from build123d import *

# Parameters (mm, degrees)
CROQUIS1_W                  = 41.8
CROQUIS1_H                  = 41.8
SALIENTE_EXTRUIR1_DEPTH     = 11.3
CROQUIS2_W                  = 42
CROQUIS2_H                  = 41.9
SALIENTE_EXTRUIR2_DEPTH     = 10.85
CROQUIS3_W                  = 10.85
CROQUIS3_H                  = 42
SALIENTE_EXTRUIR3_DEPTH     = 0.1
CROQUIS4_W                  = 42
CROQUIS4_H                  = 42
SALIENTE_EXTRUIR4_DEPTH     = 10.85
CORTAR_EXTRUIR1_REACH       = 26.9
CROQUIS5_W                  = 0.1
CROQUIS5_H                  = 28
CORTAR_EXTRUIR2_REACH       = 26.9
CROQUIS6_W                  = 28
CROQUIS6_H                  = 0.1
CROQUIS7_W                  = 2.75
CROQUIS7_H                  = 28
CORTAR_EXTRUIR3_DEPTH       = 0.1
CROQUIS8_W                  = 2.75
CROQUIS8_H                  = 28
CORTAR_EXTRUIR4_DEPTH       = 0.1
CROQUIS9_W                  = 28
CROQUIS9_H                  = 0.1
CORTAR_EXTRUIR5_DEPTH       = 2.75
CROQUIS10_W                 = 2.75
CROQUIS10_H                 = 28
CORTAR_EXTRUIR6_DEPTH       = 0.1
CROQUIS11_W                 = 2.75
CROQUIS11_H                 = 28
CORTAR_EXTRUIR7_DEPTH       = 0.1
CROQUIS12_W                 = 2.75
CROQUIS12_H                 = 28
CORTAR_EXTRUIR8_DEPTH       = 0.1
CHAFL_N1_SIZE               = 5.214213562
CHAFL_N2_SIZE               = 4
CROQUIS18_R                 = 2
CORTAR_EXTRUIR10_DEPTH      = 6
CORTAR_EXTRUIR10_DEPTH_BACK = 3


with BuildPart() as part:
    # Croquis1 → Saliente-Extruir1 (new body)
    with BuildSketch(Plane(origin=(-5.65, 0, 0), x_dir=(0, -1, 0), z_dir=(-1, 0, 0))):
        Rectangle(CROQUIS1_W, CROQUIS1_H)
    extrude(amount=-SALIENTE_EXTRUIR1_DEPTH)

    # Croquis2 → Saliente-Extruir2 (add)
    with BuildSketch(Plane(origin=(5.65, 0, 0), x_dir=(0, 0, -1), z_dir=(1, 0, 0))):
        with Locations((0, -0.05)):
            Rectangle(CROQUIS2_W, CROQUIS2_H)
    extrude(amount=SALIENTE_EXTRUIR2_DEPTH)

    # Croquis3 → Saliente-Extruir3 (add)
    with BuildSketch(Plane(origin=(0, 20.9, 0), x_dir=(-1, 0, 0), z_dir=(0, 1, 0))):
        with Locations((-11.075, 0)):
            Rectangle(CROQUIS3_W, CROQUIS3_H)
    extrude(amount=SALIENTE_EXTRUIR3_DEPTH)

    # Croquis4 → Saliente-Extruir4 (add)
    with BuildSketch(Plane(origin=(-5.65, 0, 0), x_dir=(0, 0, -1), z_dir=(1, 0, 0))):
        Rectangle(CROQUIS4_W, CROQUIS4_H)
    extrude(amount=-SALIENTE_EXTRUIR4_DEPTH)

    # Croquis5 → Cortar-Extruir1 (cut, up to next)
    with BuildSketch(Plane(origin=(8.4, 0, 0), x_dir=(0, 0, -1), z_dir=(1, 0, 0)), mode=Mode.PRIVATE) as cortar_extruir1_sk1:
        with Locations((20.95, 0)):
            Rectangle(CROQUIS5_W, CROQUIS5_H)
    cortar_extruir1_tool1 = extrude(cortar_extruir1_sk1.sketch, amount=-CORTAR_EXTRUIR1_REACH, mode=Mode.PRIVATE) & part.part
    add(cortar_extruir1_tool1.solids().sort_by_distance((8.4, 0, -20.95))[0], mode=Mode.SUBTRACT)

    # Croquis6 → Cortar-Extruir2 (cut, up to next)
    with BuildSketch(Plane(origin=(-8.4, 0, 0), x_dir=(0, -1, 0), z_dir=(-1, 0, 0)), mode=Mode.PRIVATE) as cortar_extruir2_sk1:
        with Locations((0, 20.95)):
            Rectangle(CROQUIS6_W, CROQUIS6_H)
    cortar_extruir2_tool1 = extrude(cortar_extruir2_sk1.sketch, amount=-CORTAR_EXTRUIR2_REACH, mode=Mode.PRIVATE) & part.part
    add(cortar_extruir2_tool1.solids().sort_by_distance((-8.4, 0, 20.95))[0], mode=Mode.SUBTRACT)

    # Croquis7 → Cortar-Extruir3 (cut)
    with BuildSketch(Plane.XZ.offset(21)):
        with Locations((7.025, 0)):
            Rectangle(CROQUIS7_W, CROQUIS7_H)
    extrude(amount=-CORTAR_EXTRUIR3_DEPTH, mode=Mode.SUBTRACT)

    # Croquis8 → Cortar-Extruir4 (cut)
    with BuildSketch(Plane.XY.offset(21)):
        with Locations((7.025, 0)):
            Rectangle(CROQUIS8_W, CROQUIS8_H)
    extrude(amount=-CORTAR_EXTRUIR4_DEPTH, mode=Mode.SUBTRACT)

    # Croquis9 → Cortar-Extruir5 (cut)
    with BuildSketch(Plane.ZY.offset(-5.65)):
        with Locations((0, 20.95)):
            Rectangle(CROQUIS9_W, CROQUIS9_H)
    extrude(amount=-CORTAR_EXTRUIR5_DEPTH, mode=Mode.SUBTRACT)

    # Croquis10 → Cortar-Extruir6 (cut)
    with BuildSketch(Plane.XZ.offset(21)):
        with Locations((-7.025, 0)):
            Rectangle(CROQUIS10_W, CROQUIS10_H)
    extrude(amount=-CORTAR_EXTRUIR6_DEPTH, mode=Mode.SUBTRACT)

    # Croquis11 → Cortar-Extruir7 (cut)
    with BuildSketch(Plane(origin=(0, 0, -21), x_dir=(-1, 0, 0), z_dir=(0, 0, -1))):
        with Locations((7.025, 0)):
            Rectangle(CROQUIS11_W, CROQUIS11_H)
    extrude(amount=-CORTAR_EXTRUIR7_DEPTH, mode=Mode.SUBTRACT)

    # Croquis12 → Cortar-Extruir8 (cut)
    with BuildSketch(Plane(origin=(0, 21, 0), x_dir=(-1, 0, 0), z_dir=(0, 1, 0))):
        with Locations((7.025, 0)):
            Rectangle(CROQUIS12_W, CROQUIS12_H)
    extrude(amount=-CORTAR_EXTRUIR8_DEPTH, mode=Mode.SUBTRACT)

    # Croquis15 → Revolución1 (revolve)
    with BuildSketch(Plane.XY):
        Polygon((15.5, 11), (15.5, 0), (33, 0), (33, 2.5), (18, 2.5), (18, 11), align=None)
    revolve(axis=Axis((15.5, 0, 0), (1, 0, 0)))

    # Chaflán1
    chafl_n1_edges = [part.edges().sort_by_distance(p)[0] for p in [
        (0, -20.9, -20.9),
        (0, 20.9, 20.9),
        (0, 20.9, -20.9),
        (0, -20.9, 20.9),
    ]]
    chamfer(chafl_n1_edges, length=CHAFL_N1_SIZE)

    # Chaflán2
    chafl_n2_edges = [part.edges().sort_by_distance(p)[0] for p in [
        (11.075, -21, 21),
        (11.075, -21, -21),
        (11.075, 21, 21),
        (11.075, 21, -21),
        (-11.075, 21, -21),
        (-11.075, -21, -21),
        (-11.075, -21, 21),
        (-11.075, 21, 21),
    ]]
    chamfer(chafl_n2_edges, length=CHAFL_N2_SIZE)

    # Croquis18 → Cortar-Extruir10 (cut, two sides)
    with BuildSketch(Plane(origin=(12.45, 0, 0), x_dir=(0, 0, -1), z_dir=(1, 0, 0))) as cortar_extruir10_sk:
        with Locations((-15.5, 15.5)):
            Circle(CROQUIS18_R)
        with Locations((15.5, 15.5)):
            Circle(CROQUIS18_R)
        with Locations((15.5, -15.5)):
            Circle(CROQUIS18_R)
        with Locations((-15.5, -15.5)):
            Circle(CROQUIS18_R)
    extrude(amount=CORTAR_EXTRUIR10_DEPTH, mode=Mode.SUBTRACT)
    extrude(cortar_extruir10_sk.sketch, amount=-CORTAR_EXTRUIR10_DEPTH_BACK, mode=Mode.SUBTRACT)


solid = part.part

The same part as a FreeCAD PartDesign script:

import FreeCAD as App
import Part
import Sketcher
from FreeCAD import Vector
Q = App.Units.Quantity


def edges_at(feature, points):
    """Names of the edges that pass closest to the given points."""
    edges = feature.Shape.Edges
    near = lambda p: min(range(len(edges)), key=lambda i: edges[i].distToShape(Part.Vertex(*p))[0])
    return sorted({f"Edge{near(p) + 1}" for p in points})

doc = App.newDocument("Part")
params = doc.addObject("Spreadsheet::Sheet", "Params")
for row, (alias, value) in enumerate([
    ("sketch1_width", "41.8 mm"),
    ("pad1_length", "11.3 mm"),
    ("sketch2_height", "42 mm"),
    ("sketch2_width", "41.9 mm"),
    ("pad2_length", "10.85 mm"),
    ("sketch3_height", "42 mm"),
    ("sketch3_width", "10.85 mm"),
    ("pad3_length", "0.1 mm"),
    ("sketch4_width", "42 mm"),
    ("pad4_length", "10.85 mm"),
    ("sketch5_width", "28 mm"),
    ("sketch5_height", "0.1 mm"),
    ("sketch6_width", "28 mm"),
    ("sketch6_height", "0.1 mm"),
    ("sketch7_height", "28 mm"),
    ("sketch7_width", "2.75 mm"),
    ("pocket3_length", "0.1 mm"),
    ("sketch8_height", "28 mm"),
    ("sketch8_width", "2.75 mm"),
    ("pocket4_length", "0.1 mm"),
    ("sketch9_height", "28 mm"),
    ("sketch9_width", "0.1 mm"),
    ("pocket5_length", "2.75 mm"),
    ("sketch10_height", "28 mm"),
    ("sketch10_width", "2.75 mm"),
    ("pocket6_length", "0.1 mm"),
    ("sketch11_height", "28 mm"),
    ("sketch11_width", "2.75 mm"),
    ("pocket7_length", "0.1 mm"),
    ("sketch12_height", "28 mm"),
    ("sketch12_width", "2.75 mm"),
    ("pocket8_length", "0.1 mm"),
    ("sketch13_width", "15 mm"),
    ("sketch13_height", "11 mm"),
    ("sketch13_width2", "17.5 mm"),
    ("revolution_angle", "360 deg"),
    ("chamfer_size", "5.214214 mm"),
    ("chamfer2_size", "4 mm"),
    ("sketch14_diameter", "4 mm"),
    ("pocket9_length", "6 mm"),
    ("pocket9_length2", "3 mm"),
], start=1):
    params.set(f"A{row}", alias)
    params.set(f"B{row}", "=" + value)
    params.setAlias(f"B{row}", alias)

body = doc.addObject("PartDesign::Body", "Body")

# Sketch on YZ plane
sketch1 = doc.addObject("Sketcher::SketchObject", "Sketch")
body.addObject(sketch1)
sketch1.AttachmentSupport = (doc.YZ_Plane, [""])
sketch1.MapMode = "FlatFace"
sketch1.AttachmentOffset = App.Placement(Vector(0, 0, -5.65), App.Rotation())
sketch1.addGeometry([
    Part.LineSegment(Vector(21, 21, 0), Vector(21, -21, 0)),
    Part.LineSegment(Vector(21, -21, 0), Vector(-21, -21, 0)),
    Part.LineSegment(Vector(-21, -21, 0), Vector(-21, 21, 0)),
    Part.LineSegment(Vector(-21, 21, 0), Vector(21, 21, 0)),
], False)
sketch1.addConstraint([
    Sketcher.Constraint("Coincident", 0, 2, 1, 1),
    Sketcher.Constraint("Coincident", 1, 2, 2, 1),
    Sketcher.Constraint("Coincident", 2, 2, 3, 1),
    Sketcher.Constraint("Coincident", 3, 2, 0, 1),
    Sketcher.Constraint("Vertical", 0),
    Sketcher.Constraint("Horizontal", 1),
    Sketcher.Constraint("Vertical", 2),
    Sketcher.Constraint("Horizontal", 3),
    Sketcher.Constraint("Symmetric", 0, 2, 2, 2, -1, 1),
    Sketcher.Constraint("Equal", 3, 0),
    Sketcher.Constraint("DistanceX", 1, 2, 1, 1, Q("41.8 mm")),
])
sketch1.setExpression("Constraints[10]", "Params.sketch1_width")
pad1 = doc.addObject("PartDesign::Pad", "Pad")
body.addObject(pad1)
pad1.Profile = sketch1
pad1.setExpression("Length", "Params.pad1_length")

# Sketch on YZ plane
sketch2 = doc.addObject("Sketcher::SketchObject", "Sketch001")
body.addObject(sketch2)
sketch2.AttachmentSupport = (doc.YZ_Plane, [""])
sketch2.MapMode = "FlatFace"
sketch2.AttachmentOffset = App.Placement(Vector(0, 0, 5.65), App.Rotation())
sketch2.addGeometry([
    Part.LineSegment(Vector(21, 21, 0), Vector(-21, 21, 0)),
    Part.LineSegment(Vector(-21, 21, 0), Vector(-21, -21, 0)),
    Part.LineSegment(Vector(-21, -21, 0), Vector(21, -21, 0)),
    Part.LineSegment(Vector(21, -21, 0), Vector(21, 21, 0)),
], False)
sketch2.addConstraint([
    Sketcher.Constraint("Coincident", 0, 2, 1, 1),
    Sketcher.Constraint("Coincident", 1, 2, 2, 1),
    Sketcher.Constraint("Coincident", 2, 2, 3, 1),
    Sketcher.Constraint("Coincident", 3, 2, 0, 1),
    Sketcher.Constraint("Horizontal", 0),
    Sketcher.Constraint("Vertical", 1),
    Sketcher.Constraint("Horizontal", 2),
    Sketcher.Constraint("Vertical", 3),
    Sketcher.Constraint("DistanceY", 1, 2, 1, 1, Q("42 mm")),
    Sketcher.Constraint("DistanceX", 0, 2, 0, 1, Q("41.9 mm")),
    Sketcher.Constraint("DistanceX", 0, 2, -1, 1, Q("21 mm")),
    Sketcher.Constraint("DistanceY", -1, 1, 0, 2, Q("21 mm")),
])
sketch2.setExpression("Constraints[8]", "Params.sketch2_height")
sketch2.setExpression("Constraints[9]", "Params.sketch2_width")
pad2 = doc.addObject("PartDesign::Pad", "Pad001")
body.addObject(pad2)
pad2.Profile = sketch2
pad2.setExpression("Length", "Params.pad2_length")

# Sketch on XZ plane
sketch3 = doc.addObject("Sketcher::SketchObject", "Sketch002")
body.addObject(sketch3)
sketch3.AttachmentSupport = (doc.XZ_Plane, [""])
sketch3.MapMode = "FlatFace"
sketch3.AttachmentOffset = App.Placement(Vector(0, 0, -20.9), App.Rotation())
sketch3.addGeometry([
    Part.LineSegment(Vector(16, 21, 0), Vector(16, -21, 0)),
    Part.LineSegment(Vector(16, -21, 0), Vector(6, -21, 0)),
    Part.LineSegment(Vector(6, -21, 0), Vector(6, 21, 0)),
    Part.LineSegment(Vector(6, 21, 0), Vector(16, 21, 0)),
], False)
sketch3.addConstraint([
    Sketcher.Constraint("Coincident", 0, 2, 1, 1),
    Sketcher.Constraint("Coincident", 1, 2, 2, 1),
    Sketcher.Constraint("Coincident", 2, 2, 3, 1),
    Sketcher.Constraint("Coincident", 3, 2, 0, 1),
    Sketcher.Constraint("Vertical", 0),
    Sketcher.Constraint("Horizontal", 1),
    Sketcher.Constraint("Vertical", 2),
    Sketcher.Constraint("Horizontal", 3),
    Sketcher.Constraint("DistanceY", 0, 2, 0, 1, Q("42 mm")),
    Sketcher.Constraint("DistanceY", 0, 2, -1, 1, Q("21 mm")),
    Sketcher.Constraint("DistanceX", 1, 2, 1, 1, Q("10.85 mm")),
    Sketcher.Constraint("DistanceX", -1, 1, 0, 2, Q("16.5 mm")),
])
sketch3.setExpression("Constraints[8]", "Params.sketch3_height")
sketch3.setExpression("Constraints[10]", "Params.sketch3_width")
pad3 = doc.addObject("PartDesign::Pad", "Pad002")
body.addObject(pad3)
pad3.Profile = sketch3
pad3.setExpression("Length", "Params.pad3_length")
pad3.Reversed = True

# Sketch on YZ plane
sketch4 = doc.addObject("Sketcher::SketchObject", "Sketch003")
body.addObject(sketch4)
sketch4.AttachmentSupport = (doc.YZ_Plane, [""])
sketch4.MapMode = "FlatFace"
sketch4.AttachmentOffset = App.Placement(Vector(0, 0, -5.65), App.Rotation())
sketch4.addGeometry([
    Part.LineSegment(Vector(21, 21, 0), Vector(-21, 21, 0)),
    Part.LineSegment(Vector(-21, 21, 0), Vector(-21, -21, 0)),
    Part.LineSegment(Vector(-21, -21, 0), Vector(21, -21, 0)),
    Part.LineSegment(Vector(21, -21, 0), Vector(21, 21, 0)),
], False)
sketch4.addConstraint([
    Sketcher.Constraint("Coincident", 0, 2, 1, 1),
    Sketcher.Constraint("Coincident", 1, 2, 2, 1),
    Sketcher.Constraint("Coincident", 2, 2, 3, 1),
    Sketcher.Constraint("Coincident", 3, 2, 0, 1),
    Sketcher.Constraint("Horizontal", 0),
    Sketcher.Constraint("Vertical", 1),
    Sketcher.Constraint("Horizontal", 2),
    Sketcher.Constraint("Vertical", 3),
    Sketcher.Constraint("Symmetric", 0, 2, 2, 2, -1, 1),
    Sketcher.Constraint("Equal", 2, 1),
    Sketcher.Constraint("DistanceX", 0, 2, 0, 1, Q("42 mm")),
])
sketch4.setExpression("Constraints[10]", "Params.sketch4_width")
pad4 = doc.addObject("PartDesign::Pad", "Pad003")
body.addObject(pad4)
pad4.Profile = sketch4
pad4.setExpression("Length", "Params.pad4_length")
pad4.Reversed = True

# Sketch on YZ plane
sketch5 = doc.addObject("Sketcher::SketchObject", "Sketch004")
body.addObject(sketch5)
sketch5.AttachmentSupport = (doc.YZ_Plane, [""])
sketch5.MapMode = "FlatFace"
sketch5.AttachmentOffset = App.Placement(Vector(0, 0, 8.4), App.Rotation())
sketch5.addGeometry([
    Part.LineSegment(Vector(14, -20.9, 0), Vector(-14, -20.9, 0)),
    Part.LineSegment(Vector(-14, -20.9, 0), Vector(-14, -21, 0)),
    Part.LineSegment(Vector(-14, -21, 0), Vector(14, -21, 0)),
    Part.LineSegment(Vector(14, -21, 0), Vector(14, -20.9, 0)),
], False)
sketch5.addConstraint([
    Sketcher.Constraint("Coincident", 0, 2, 1, 1),
    Sketcher.Constraint("Coincident", 1, 2, 2, 1),
    Sketcher.Constraint("Coincident", 2, 2, 3, 1),
    Sketcher.Constraint("Coincident", 3, 2, 0, 1),
    Sketcher.Constraint("Horizontal", 0),
    Sketcher.Constraint("Vertical", 1),
    Sketcher.Constraint("Horizontal", 2),
    Sketcher.Constraint("Vertical", 3),
    Sketcher.Constraint("DistanceX", 0, 2, 0, 1, Q("28 mm")),
    Sketcher.Constraint("DistanceY", 1, 2, 1, 1, Q("0.1 mm")),
    Sketcher.Constraint("DistanceX", 0, 2, -1, 1, Q("14 mm")),
    Sketcher.Constraint("DistanceY", 1, 2, -1, 1, Q("21 mm")),
])
sketch5.setExpression("Constraints[8]", "Params.sketch5_width")
sketch5.setExpression("Constraints[9]", "Params.sketch5_height")
pocket1 = doc.addObject("PartDesign::Pocket", "Pocket")
body.addObject(pocket1)
pocket1.Profile = sketch5
pocket1.Type = "UpToFirst"

# Sketch on YZ plane
sketch6 = doc.addObject("Sketcher::SketchObject", "Sketch005")
body.addObject(sketch6)
sketch6.AttachmentSupport = (doc.YZ_Plane, [""])
sketch6.MapMode = "FlatFace"
sketch6.AttachmentOffset = App.Placement(Vector(0, 0, -8.4), App.Rotation())
sketch6.addGeometry([
    Part.LineSegment(Vector(14, 21, 0), Vector(14, 20.9, 0)),
    Part.LineSegment(Vector(14, 20.9, 0), Vector(-14, 20.9, 0)),
    Part.LineSegment(Vector(-14, 20.9, 0), Vector(-14, 21, 0)),
    Part.LineSegment(Vector(-14, 21, 0), Vector(14, 21, 0)),
], False)
sketch6.addConstraint([
    Sketcher.Constraint("Coincident", 0, 2, 1, 1),
    Sketcher.Constraint("Coincident", 1, 2, 2, 1),
    Sketcher.Constraint("Coincident", 2, 2, 3, 1),
    Sketcher.Constraint("Coincident", 3, 2, 0, 1),
    Sketcher.Constraint("Vertical", 0),
    Sketcher.Constraint("Horizontal", 1),
    Sketcher.Constraint("Vertical", 2),
    Sketcher.Constraint("Horizontal", 3),
    Sketcher.Constraint("DistanceX", 1, 2, 1, 1, Q("28 mm")),
    Sketcher.Constraint("DistanceY", 0, 2, 0, 1, Q("0.1 mm")),
    Sketcher.Constraint("DistanceX", -1, 1, 0, 2, Q("14 mm")),
    Sketcher.Constraint("DistanceY", -1, 1, 2, 2, Q("21 mm")),
])
sketch6.setExpression("Constraints[8]", "Params.sketch6_width")
sketch6.setExpression("Constraints[9]", "Params.sketch6_height")
pocket2 = doc.addObject("PartDesign::Pocket", "Pocket001")
body.addObject(pocket2)
pocket2.Profile = sketch6
pocket2.Type = "UpToFirst"
pocket2.Reversed = True

# Sketch on XZ plane
sketch7 = doc.addObject("Sketcher::SketchObject", "Sketch006")
body.addObject(sketch7)
sketch7.AttachmentSupport = (doc.XZ_Plane, [""])
sketch7.MapMode = "FlatFace"
sketch7.AttachmentOffset = App.Placement(Vector(0, 0, 21), App.Rotation())
sketch7.addGeometry([
    Part.LineSegment(Vector(5.7, 14, 0), Vector(5.7, -14, 0)),
    Part.LineSegment(Vector(5.7, -14, 0), Vector(8.4, -14, 0)),
    Part.LineSegment(Vector(8.4, -14, 0), Vector(8.4, 14, 0)),
    Part.LineSegment(Vector(8.4, 14, 0), Vector(5.7, 14, 0)),
], False)
sketch7.addConstraint([
    Sketcher.Constraint("Coincident", 0, 2, 1, 1),
    Sketcher.Constraint("Coincident", 1, 2, 2, 1),
    Sketcher.Constraint("Coincident", 2, 2, 3, 1),
    Sketcher.Constraint("Coincident", 3, 2, 0, 1),
    Sketcher.Constraint("Vertical", 0),
    Sketcher.Constraint("Horizontal", 1),
    Sketcher.Constraint("Vertical", 2),
    Sketcher.Constraint("Horizontal", 3),
    Sketcher.Constraint("DistanceY", 0, 2, 0, 1, Q("28 mm")),
    Sketcher.Constraint("DistanceY", 0, 2, -1, 1, Q("14 mm")),
    Sketcher.Constraint("DistanceX", 1, 1, 1, 2, Q("2.75 mm")),
    Sketcher.Constraint("DistanceX", -1, 1, 1, 2, Q("8.4 mm")),
])
sketch7.setExpression("Constraints[8]", "Params.sketch7_height")
sketch7.setExpression("Constraints[10]", "Params.sketch7_width")
pocket3 = doc.addObject("PartDesign::Pocket", "Pocket002")
body.addObject(pocket3)
pocket3.Profile = sketch7
pocket3.setExpression("Length", "Params.pocket3_length")

# Sketch on XY plane
sketch8 = doc.addObject("Sketcher::SketchObject", "Sketch007")
body.addObject(sketch8)
sketch8.AttachmentSupport = (doc.XY_Plane, [""])
sketch8.MapMode = "FlatFace"
sketch8.AttachmentOffset = App.Placement(Vector(0, 0, 21), App.Rotation())
sketch8.addGeometry([
    Part.LineSegment(Vector(5.7, 14, 0), Vector(5.7, -14, 0)),
    Part.LineSegment(Vector(5.7, -14, 0), Vector(8.4, -14, 0)),
    Part.LineSegment(Vector(8.4, -14, 0), Vector(8.4, 14, 0)),
    Part.LineSegment(Vector(8.4, 14, 0), Vector(5.7, 14, 0)),
], False)
sketch8.addConstraint([
    Sketcher.Constraint("Coincident", 0, 2, 1, 1),
    Sketcher.Constraint("Coincident", 1, 2, 2, 1),
    Sketcher.Constraint("Coincident", 2, 2, 3, 1),
    Sketcher.Constraint("Coincident", 3, 2, 0, 1),
    Sketcher.Constraint("Vertical", 0),
    Sketcher.Constraint("Horizontal", 1),
    Sketcher.Constraint("Vertical", 2),
    Sketcher.Constraint("Horizontal", 3),
    Sketcher.Constraint("DistanceY", 0, 2, 0, 1, Q("28 mm")),
    Sketcher.Constraint("DistanceY", 0, 2, -1, 1, Q("14 mm")),
    Sketcher.Constraint("DistanceX", 1, 1, 1, 2, Q("2.75 mm")),
    Sketcher.Constraint("DistanceX", -1, 1, 1, 2, Q("8.4 mm")),
])
sketch8.setExpression("Constraints[8]", "Params.sketch8_height")
sketch8.setExpression("Constraints[10]", "Params.sketch8_width")
pocket4 = doc.addObject("PartDesign::Pocket", "Pocket003")
body.addObject(pocket4)
pocket4.Profile = sketch8
pocket4.setExpression("Length", "Params.pocket4_length")

# Sketch on YZ plane
sketch9 = doc.addObject("Sketcher::SketchObject", "Sketch008")
body.addObject(sketch9)
sketch9.AttachmentSupport = (doc.YZ_Plane, [""])
sketch9.MapMode = "FlatFace"
sketch9.AttachmentOffset = App.Placement(Vector(0, 0, 5.65), App.Rotation())
sketch9.addGeometry([
    Part.LineSegment(Vector(21, -14, 0), Vector(20.9, -14, 0)),
    Part.LineSegment(Vector(20.9, -14, 0), Vector(20.9, 14, 0)),
    Part.LineSegment(Vector(20.9, 14, 0), Vector(21, 14, 0)),
    Part.LineSegment(Vector(21, 14, 0), Vector(21, -14, 0)),
], False)
sketch9.addConstraint([
    Sketcher.Constraint("Coincident", 0, 2, 1, 1),
    Sketcher.Constraint("Coincident", 1, 2, 2, 1),
    Sketcher.Constraint("Coincident", 2, 2, 3, 1),
    Sketcher.Constraint("Coincident", 3, 2, 0, 1),
    Sketcher.Constraint("Horizontal", 0),
    Sketcher.Constraint("Vertical", 1),
    Sketcher.Constraint("Horizontal", 2),
    Sketcher.Constraint("Vertical", 3),
    Sketcher.Constraint("DistanceY", 1, 1, 1, 2, Q("28 mm")),
    Sketcher.Constraint("DistanceX", 0, 2, 0, 1, Q("0.1 mm")),
    Sketcher.Constraint("DistanceY", 0, 2, -1, 1, Q("14 mm")),
    Sketcher.Constraint("DistanceX", -1, 1, 2, 2, Q("21 mm")),
])
sketch9.setExpression("Constraints[8]", "Params.sketch9_height")
sketch9.setExpression("Constraints[9]", "Params.sketch9_width")
pocket5 = doc.addObject("PartDesign::Pocket", "Pocket004")
body.addObject(pocket5)
pocket5.Profile = sketch9
pocket5.setExpression("Length", "Params.pocket5_length")
pocket5.Reversed = True

# Sketch on XZ plane
sketch10 = doc.addObject("Sketcher::SketchObject", "Sketch009")
body.addObject(sketch10)
sketch10.AttachmentSupport = (doc.XZ_Plane, [""])
sketch10.MapMode = "FlatFace"
sketch10.AttachmentOffset = App.Placement(Vector(0, 0, 21), App.Rotation())
sketch10.addGeometry([
    Part.LineSegment(Vector(-8.4, 14, 0), Vector(-8.4, -14, 0)),
    Part.LineSegment(Vector(-8.4, -14, 0), Vector(-5.7, -14, 0)),
    Part.LineSegment(Vector(-5.7, -14, 0), Vector(-5.7, 14, 0)),
    Part.LineSegment(Vector(-5.7, 14, 0), Vector(-8.4, 14, 0)),
], False)
sketch10.addConstraint([
    Sketcher.Constraint("Coincident", 0, 2, 1, 1),
    Sketcher.Constraint("Coincident", 1, 2, 2, 1),
    Sketcher.Constraint("Coincident", 2, 2, 3, 1),
    Sketcher.Constraint("Coincident", 3, 2, 0, 1),
    Sketcher.Constraint("Vertical", 0),
    Sketcher.Constraint("Horizontal", 1),
    Sketcher.Constraint("Vertical", 2),
    Sketcher.Constraint("Horizontal", 3),
    Sketcher.Constraint("DistanceY", 0, 2, 0, 1, Q("28 mm")),
    Sketcher.Constraint("DistanceY", 0, 2, -1, 1, Q("14 mm")),
    Sketcher.Constraint("DistanceX", 1, 1, 1, 2, Q("2.75 mm")),
    Sketcher.Constraint("DistanceX", 0, 2, -1, 1, Q("8.4 mm")),
])
sketch10.setExpression("Constraints[8]", "Params.sketch10_height")
sketch10.setExpression("Constraints[10]", "Params.sketch10_width")
pocket6 = doc.addObject("PartDesign::Pocket", "Pocket005")
body.addObject(pocket6)
pocket6.Profile = sketch10
pocket6.setExpression("Length", "Params.pocket6_length")

# Sketch on XY plane
sketch11 = doc.addObject("Sketcher::SketchObject", "Sketch010")
body.addObject(sketch11)
sketch11.AttachmentSupport = (doc.XY_Plane, [""])
sketch11.MapMode = "FlatFace"
sketch11.AttachmentOffset = App.Placement(Vector(0, 0, -21), App.Rotation())
sketch11.addGeometry([
    Part.LineSegment(Vector(-5.7, 14, 0), Vector(-5.7, -14, 0)),
    Part.LineSegment(Vector(-5.7, -14, 0), Vector(-8.4, -14, 0)),
    Part.LineSegment(Vector(-8.4, -14, 0), Vector(-8.4, 14, 0)),
    Part.LineSegment(Vector(-8.4, 14, 0), Vector(-5.7, 14, 0)),
], False)
sketch11.addConstraint([
    Sketcher.Constraint("Coincident", 0, 2, 1, 1),
    Sketcher.Constraint("Coincident", 1, 2, 2, 1),
    Sketcher.Constraint("Coincident", 2, 2, 3, 1),
    Sketcher.Constraint("Coincident", 3, 2, 0, 1),
    Sketcher.Constraint("Vertical", 0),
    Sketcher.Constraint("Horizontal", 1),
    Sketcher.Constraint("Vertical", 2),
    Sketcher.Constraint("Horizontal", 3),
    Sketcher.Constraint("DistanceY", 0, 2, 0, 1, Q("28 mm")),
    Sketcher.Constraint("DistanceY", 0, 2, -1, 1, Q("14 mm")),
    Sketcher.Constraint("DistanceX", 1, 2, 1, 1, Q("2.75 mm")),
    Sketcher.Constraint("DistanceX", 1, 2, -1, 1, Q("8.4 mm")),
])
sketch11.setExpression("Constraints[8]", "Params.sketch11_height")
sketch11.setExpression("Constraints[10]", "Params.sketch11_width")
pocket7 = doc.addObject("PartDesign::Pocket", "Pocket006")
body.addObject(pocket7)
pocket7.Profile = sketch11
pocket7.setExpression("Length", "Params.pocket7_length")
pocket7.Reversed = True

# Sketch on XZ plane
sketch12 = doc.addObject("Sketcher::SketchObject", "Sketch011")
body.addObject(sketch12)
sketch12.AttachmentSupport = (doc.XZ_Plane, [""])
sketch12.MapMode = "FlatFace"
sketch12.AttachmentOffset = App.Placement(Vector(0, 0, -21), App.Rotation())
sketch12.addGeometry([
    Part.LineSegment(Vector(-5.7, 14, 0), Vector(-5.7, -14, 0)),
    Part.LineSegment(Vector(-5.7, -14, 0), Vector(-8.4, -14, 0)),
    Part.LineSegment(Vector(-8.4, -14, 0), Vector(-8.4, 14, 0)),
    Part.LineSegment(Vector(-8.4, 14, 0), Vector(-5.7, 14, 0)),
], False)
sketch12.addConstraint([
    Sketcher.Constraint("Coincident", 0, 2, 1, 1),
    Sketcher.Constraint("Coincident", 1, 2, 2, 1),
    Sketcher.Constraint("Coincident", 2, 2, 3, 1),
    Sketcher.Constraint("Coincident", 3, 2, 0, 1),
    Sketcher.Constraint("Vertical", 0),
    Sketcher.Constraint("Horizontal", 1),
    Sketcher.Constraint("Vertical", 2),
    Sketcher.Constraint("Horizontal", 3),
    Sketcher.Constraint("DistanceY", 0, 2, 0, 1, Q("28 mm")),
    Sketcher.Constraint("DistanceY", 0, 2, -1, 1, Q("14 mm")),
    Sketcher.Constraint("DistanceX", 1, 2, 1, 1, Q("2.75 mm")),
    Sketcher.Constraint("DistanceX", 1, 2, -1, 1, Q("8.4 mm")),
])
sketch12.setExpression("Constraints[8]", "Params.sketch12_height")
sketch12.setExpression("Constraints[10]", "Params.sketch12_width")
pocket8 = doc.addObject("PartDesign::Pocket", "Pocket007")
body.addObject(pocket8)
pocket8.Profile = sketch12
pocket8.setExpression("Length", "Params.pocket8_length")
pocket8.Reversed = True

# Sketch on XY plane
sketch13 = doc.addObject("Sketcher::SketchObject", "Sketch012")
body.addObject(sketch13)
sketch13.AttachmentSupport = (doc.XY_Plane, [""])
sketch13.MapMode = "FlatFace"
sketch13.addGeometry([
    Part.LineSegment(Vector(15.5, 11, 0), Vector(15.5, 0, 0)),  # 0
    Part.LineSegment(Vector(15.5, 0, 0), Vector(33, 0, 0)),  # 1
    Part.LineSegment(Vector(33, 0, 0), Vector(33, 2.5, 0)),  # 2
    Part.LineSegment(Vector(33, 2.5, 0), Vector(18, 2.5, 0)),  # 3
    Part.LineSegment(Vector(18, 2.5, 0), Vector(18, 11, 0)),  # 4
    Part.LineSegment(Vector(18, 11, 0), Vector(15.5, 11, 0)),  # 5
], False)
sketch13.addConstraint([
    Sketcher.Constraint("Coincident", 0, 2, 1, 1),
    Sketcher.Constraint("Coincident", 1, 2, 2, 1),
    Sketcher.Constraint("Coincident", 2, 2, 3, 1),
    Sketcher.Constraint("Coincident", 3, 2, 4, 1),
    Sketcher.Constraint("Coincident", 4, 2, 5, 1),
    Sketcher.Constraint("Coincident", 5, 2, 0, 1),
    Sketcher.Constraint("Vertical", 0),
    Sketcher.Constraint("Horizontal", 1),
    Sketcher.Constraint("Vertical", 2),
    Sketcher.Constraint("Horizontal", 3),
    Sketcher.Constraint("Vertical", 4),
    Sketcher.Constraint("Horizontal", 5),
    Sketcher.Constraint("PointOnObject", 0, 2, -1),
    Sketcher.Constraint("Equal", 5, 2),
    Sketcher.Constraint("DistanceX", 3, 2, 3, 1, Q("15 mm")),
    Sketcher.Constraint("DistanceY", 0, 2, 0, 1, Q("11 mm")),
    Sketcher.Constraint("DistanceX", 1, 1, 1, 2, Q("17.5 mm")),
    Sketcher.Constraint("DistanceX", -1, 1, 1, 2, Q("33 mm")),
])
sketch13.setExpression("Constraints[14]", "Params.sketch13_width")
sketch13.setExpression("Constraints[15]", "Params.sketch13_height")
sketch13.setExpression("Constraints[16]", "Params.sketch13_width2")
revolution = doc.addObject("PartDesign::Revolution", "Revolution")
body.addObject(revolution)
revolution.Profile = sketch13
revolution.ReferenceAxis = (sketch13, ["H_Axis"])
revolution.setExpression("Angle", "Params.revolution_angle")
doc.recompute()

chamfer = doc.addObject("PartDesign::Chamfer", "Chamfer")
body.addObject(chamfer)
chamfer.Base = (revolution, edges_at(revolution, [
    (0, -20.9, -20.9),
    (0, 20.9, 20.9),
    (0, 20.9, -20.9),
    (0, -20.9, 20.9),
]))
chamfer.setExpression("Size", "Params.chamfer_size")
doc.recompute()

chamfer2 = doc.addObject("PartDesign::Chamfer", "Chamfer001")
body.addObject(chamfer2)
chamfer2.Base = (chamfer, edges_at(chamfer, [
    (11.075, -21, 21),
    (11.075, -21, -21),
    (11.075, 21, 21),
    (11.075, 21, -21),
    (-11.075, 21, -21),
    (-11.075, -21, -21),
    (-11.075, -21, 21),
    (-11.075, 21, 21),
]))
chamfer2.setExpression("Size", "Params.chamfer2_size")

# Sketch on YZ plane
sketch14 = doc.addObject("Sketcher::SketchObject", "Sketch013")
body.addObject(sketch14)
sketch14.AttachmentSupport = (doc.YZ_Plane, [""])
sketch14.MapMode = "FlatFace"
sketch14.AttachmentOffset = App.Placement(Vector(0, 0, 12.45), App.Rotation())
sketch14.addGeometry([
    Part.Circle(Vector(15.5, 15.5, 0), Vector(0, 0, 1), 2),
    Part.Circle(Vector(15.5, -15.5, 0), Vector(0, 0, 1), 2),
    Part.Circle(Vector(-15.5, -15.5, 0), Vector(0, 0, 1), 2),
    Part.Circle(Vector(-15.5, 15.5, 0), Vector(0, 0, 1), 2),
], False)
sketch14.addConstraint([
    Sketcher.Constraint("Equal", 0, 1),
    Sketcher.Constraint("Equal", 1, 2),
    Sketcher.Constraint("Equal", 2, 3),
    Sketcher.Constraint("Symmetric", 0, 3, 2, 3, -1, 1),
    Sketcher.Constraint("Symmetric", 1, 3, 3, 3, -1, 1),
    Sketcher.Constraint("Symmetric", 1, 3, 2, 3, -2),
    Sketcher.Constraint("Diameter", 0, Q("4 mm")),
    Sketcher.Constraint("DistanceY", 1, 3, 0, 3, Q("31 mm")),
    Sketcher.Constraint("DistanceX", 2, 3, 1, 3, Q("31 mm")),
])
sketch14.setExpression("Constraints[6]", "Params.sketch14_diameter")
pocket9 = doc.addObject("PartDesign::Pocket", "Pocket008")
body.addObject(pocket9)
pocket9.Profile = sketch14
pocket9.Type = "TwoLengths"
pocket9.setExpression("Length", "Params.pocket9_length")
pocket9.setExpression("Length2", "Params.pocket9_length2")
pocket9.Reversed = True

doc.recompute()
